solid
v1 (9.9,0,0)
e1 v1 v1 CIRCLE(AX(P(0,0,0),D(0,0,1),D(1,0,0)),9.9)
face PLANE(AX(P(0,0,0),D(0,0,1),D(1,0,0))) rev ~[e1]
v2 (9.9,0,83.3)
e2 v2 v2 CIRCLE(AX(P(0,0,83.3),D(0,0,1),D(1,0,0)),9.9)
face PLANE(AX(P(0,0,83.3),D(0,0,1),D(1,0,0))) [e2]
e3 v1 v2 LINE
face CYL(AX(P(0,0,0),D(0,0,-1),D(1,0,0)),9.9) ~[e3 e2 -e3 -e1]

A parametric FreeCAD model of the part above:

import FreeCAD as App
import Part
import Sketcher

doc = App.newDocument("Part")
params = doc.addObject("Spreadsheet::Sheet", "Params")
for row, (alias, value) in enumerate([
    ("sketch1_diameter", "19.8 mm"),
    ("pad1_length", "83.3 mm"),
], start=1):
    params.set(f"A{row}", alias)
    params.set(f"B{row}", "=" + value)
    params.setAlias(f"B{row}", alias)

body = doc.addObject("PartDesign::Body", "Body")

sketch1 = body.newObject("Sketcher::SketchObject", "Sketch")
sketch1.AttachmentSupport = (doc.getObject("XY_Plane"), [""])
sketch1.MapMode = "FlatFace"
sketch1.addGeometry(Part.Circle(App.Vector(0, 0, 0), App.Vector(0, 0, 1), 10), False)
sketch1.addConstraint([
    Sketcher.Constraint("Coincident", 0, 3, -1, 1),
    Sketcher.Constraint("Diameter", 0, 19.8),
])
sketch1.setExpression("Constraints[1]", "Params.sketch1_diameter")
pad1 = body.newObject("PartDesign::Pad", "Pad")
pad1.Profile = sketch1
pad1.setExpression("Length", "Params.pad1_length")

doc.recompute()
